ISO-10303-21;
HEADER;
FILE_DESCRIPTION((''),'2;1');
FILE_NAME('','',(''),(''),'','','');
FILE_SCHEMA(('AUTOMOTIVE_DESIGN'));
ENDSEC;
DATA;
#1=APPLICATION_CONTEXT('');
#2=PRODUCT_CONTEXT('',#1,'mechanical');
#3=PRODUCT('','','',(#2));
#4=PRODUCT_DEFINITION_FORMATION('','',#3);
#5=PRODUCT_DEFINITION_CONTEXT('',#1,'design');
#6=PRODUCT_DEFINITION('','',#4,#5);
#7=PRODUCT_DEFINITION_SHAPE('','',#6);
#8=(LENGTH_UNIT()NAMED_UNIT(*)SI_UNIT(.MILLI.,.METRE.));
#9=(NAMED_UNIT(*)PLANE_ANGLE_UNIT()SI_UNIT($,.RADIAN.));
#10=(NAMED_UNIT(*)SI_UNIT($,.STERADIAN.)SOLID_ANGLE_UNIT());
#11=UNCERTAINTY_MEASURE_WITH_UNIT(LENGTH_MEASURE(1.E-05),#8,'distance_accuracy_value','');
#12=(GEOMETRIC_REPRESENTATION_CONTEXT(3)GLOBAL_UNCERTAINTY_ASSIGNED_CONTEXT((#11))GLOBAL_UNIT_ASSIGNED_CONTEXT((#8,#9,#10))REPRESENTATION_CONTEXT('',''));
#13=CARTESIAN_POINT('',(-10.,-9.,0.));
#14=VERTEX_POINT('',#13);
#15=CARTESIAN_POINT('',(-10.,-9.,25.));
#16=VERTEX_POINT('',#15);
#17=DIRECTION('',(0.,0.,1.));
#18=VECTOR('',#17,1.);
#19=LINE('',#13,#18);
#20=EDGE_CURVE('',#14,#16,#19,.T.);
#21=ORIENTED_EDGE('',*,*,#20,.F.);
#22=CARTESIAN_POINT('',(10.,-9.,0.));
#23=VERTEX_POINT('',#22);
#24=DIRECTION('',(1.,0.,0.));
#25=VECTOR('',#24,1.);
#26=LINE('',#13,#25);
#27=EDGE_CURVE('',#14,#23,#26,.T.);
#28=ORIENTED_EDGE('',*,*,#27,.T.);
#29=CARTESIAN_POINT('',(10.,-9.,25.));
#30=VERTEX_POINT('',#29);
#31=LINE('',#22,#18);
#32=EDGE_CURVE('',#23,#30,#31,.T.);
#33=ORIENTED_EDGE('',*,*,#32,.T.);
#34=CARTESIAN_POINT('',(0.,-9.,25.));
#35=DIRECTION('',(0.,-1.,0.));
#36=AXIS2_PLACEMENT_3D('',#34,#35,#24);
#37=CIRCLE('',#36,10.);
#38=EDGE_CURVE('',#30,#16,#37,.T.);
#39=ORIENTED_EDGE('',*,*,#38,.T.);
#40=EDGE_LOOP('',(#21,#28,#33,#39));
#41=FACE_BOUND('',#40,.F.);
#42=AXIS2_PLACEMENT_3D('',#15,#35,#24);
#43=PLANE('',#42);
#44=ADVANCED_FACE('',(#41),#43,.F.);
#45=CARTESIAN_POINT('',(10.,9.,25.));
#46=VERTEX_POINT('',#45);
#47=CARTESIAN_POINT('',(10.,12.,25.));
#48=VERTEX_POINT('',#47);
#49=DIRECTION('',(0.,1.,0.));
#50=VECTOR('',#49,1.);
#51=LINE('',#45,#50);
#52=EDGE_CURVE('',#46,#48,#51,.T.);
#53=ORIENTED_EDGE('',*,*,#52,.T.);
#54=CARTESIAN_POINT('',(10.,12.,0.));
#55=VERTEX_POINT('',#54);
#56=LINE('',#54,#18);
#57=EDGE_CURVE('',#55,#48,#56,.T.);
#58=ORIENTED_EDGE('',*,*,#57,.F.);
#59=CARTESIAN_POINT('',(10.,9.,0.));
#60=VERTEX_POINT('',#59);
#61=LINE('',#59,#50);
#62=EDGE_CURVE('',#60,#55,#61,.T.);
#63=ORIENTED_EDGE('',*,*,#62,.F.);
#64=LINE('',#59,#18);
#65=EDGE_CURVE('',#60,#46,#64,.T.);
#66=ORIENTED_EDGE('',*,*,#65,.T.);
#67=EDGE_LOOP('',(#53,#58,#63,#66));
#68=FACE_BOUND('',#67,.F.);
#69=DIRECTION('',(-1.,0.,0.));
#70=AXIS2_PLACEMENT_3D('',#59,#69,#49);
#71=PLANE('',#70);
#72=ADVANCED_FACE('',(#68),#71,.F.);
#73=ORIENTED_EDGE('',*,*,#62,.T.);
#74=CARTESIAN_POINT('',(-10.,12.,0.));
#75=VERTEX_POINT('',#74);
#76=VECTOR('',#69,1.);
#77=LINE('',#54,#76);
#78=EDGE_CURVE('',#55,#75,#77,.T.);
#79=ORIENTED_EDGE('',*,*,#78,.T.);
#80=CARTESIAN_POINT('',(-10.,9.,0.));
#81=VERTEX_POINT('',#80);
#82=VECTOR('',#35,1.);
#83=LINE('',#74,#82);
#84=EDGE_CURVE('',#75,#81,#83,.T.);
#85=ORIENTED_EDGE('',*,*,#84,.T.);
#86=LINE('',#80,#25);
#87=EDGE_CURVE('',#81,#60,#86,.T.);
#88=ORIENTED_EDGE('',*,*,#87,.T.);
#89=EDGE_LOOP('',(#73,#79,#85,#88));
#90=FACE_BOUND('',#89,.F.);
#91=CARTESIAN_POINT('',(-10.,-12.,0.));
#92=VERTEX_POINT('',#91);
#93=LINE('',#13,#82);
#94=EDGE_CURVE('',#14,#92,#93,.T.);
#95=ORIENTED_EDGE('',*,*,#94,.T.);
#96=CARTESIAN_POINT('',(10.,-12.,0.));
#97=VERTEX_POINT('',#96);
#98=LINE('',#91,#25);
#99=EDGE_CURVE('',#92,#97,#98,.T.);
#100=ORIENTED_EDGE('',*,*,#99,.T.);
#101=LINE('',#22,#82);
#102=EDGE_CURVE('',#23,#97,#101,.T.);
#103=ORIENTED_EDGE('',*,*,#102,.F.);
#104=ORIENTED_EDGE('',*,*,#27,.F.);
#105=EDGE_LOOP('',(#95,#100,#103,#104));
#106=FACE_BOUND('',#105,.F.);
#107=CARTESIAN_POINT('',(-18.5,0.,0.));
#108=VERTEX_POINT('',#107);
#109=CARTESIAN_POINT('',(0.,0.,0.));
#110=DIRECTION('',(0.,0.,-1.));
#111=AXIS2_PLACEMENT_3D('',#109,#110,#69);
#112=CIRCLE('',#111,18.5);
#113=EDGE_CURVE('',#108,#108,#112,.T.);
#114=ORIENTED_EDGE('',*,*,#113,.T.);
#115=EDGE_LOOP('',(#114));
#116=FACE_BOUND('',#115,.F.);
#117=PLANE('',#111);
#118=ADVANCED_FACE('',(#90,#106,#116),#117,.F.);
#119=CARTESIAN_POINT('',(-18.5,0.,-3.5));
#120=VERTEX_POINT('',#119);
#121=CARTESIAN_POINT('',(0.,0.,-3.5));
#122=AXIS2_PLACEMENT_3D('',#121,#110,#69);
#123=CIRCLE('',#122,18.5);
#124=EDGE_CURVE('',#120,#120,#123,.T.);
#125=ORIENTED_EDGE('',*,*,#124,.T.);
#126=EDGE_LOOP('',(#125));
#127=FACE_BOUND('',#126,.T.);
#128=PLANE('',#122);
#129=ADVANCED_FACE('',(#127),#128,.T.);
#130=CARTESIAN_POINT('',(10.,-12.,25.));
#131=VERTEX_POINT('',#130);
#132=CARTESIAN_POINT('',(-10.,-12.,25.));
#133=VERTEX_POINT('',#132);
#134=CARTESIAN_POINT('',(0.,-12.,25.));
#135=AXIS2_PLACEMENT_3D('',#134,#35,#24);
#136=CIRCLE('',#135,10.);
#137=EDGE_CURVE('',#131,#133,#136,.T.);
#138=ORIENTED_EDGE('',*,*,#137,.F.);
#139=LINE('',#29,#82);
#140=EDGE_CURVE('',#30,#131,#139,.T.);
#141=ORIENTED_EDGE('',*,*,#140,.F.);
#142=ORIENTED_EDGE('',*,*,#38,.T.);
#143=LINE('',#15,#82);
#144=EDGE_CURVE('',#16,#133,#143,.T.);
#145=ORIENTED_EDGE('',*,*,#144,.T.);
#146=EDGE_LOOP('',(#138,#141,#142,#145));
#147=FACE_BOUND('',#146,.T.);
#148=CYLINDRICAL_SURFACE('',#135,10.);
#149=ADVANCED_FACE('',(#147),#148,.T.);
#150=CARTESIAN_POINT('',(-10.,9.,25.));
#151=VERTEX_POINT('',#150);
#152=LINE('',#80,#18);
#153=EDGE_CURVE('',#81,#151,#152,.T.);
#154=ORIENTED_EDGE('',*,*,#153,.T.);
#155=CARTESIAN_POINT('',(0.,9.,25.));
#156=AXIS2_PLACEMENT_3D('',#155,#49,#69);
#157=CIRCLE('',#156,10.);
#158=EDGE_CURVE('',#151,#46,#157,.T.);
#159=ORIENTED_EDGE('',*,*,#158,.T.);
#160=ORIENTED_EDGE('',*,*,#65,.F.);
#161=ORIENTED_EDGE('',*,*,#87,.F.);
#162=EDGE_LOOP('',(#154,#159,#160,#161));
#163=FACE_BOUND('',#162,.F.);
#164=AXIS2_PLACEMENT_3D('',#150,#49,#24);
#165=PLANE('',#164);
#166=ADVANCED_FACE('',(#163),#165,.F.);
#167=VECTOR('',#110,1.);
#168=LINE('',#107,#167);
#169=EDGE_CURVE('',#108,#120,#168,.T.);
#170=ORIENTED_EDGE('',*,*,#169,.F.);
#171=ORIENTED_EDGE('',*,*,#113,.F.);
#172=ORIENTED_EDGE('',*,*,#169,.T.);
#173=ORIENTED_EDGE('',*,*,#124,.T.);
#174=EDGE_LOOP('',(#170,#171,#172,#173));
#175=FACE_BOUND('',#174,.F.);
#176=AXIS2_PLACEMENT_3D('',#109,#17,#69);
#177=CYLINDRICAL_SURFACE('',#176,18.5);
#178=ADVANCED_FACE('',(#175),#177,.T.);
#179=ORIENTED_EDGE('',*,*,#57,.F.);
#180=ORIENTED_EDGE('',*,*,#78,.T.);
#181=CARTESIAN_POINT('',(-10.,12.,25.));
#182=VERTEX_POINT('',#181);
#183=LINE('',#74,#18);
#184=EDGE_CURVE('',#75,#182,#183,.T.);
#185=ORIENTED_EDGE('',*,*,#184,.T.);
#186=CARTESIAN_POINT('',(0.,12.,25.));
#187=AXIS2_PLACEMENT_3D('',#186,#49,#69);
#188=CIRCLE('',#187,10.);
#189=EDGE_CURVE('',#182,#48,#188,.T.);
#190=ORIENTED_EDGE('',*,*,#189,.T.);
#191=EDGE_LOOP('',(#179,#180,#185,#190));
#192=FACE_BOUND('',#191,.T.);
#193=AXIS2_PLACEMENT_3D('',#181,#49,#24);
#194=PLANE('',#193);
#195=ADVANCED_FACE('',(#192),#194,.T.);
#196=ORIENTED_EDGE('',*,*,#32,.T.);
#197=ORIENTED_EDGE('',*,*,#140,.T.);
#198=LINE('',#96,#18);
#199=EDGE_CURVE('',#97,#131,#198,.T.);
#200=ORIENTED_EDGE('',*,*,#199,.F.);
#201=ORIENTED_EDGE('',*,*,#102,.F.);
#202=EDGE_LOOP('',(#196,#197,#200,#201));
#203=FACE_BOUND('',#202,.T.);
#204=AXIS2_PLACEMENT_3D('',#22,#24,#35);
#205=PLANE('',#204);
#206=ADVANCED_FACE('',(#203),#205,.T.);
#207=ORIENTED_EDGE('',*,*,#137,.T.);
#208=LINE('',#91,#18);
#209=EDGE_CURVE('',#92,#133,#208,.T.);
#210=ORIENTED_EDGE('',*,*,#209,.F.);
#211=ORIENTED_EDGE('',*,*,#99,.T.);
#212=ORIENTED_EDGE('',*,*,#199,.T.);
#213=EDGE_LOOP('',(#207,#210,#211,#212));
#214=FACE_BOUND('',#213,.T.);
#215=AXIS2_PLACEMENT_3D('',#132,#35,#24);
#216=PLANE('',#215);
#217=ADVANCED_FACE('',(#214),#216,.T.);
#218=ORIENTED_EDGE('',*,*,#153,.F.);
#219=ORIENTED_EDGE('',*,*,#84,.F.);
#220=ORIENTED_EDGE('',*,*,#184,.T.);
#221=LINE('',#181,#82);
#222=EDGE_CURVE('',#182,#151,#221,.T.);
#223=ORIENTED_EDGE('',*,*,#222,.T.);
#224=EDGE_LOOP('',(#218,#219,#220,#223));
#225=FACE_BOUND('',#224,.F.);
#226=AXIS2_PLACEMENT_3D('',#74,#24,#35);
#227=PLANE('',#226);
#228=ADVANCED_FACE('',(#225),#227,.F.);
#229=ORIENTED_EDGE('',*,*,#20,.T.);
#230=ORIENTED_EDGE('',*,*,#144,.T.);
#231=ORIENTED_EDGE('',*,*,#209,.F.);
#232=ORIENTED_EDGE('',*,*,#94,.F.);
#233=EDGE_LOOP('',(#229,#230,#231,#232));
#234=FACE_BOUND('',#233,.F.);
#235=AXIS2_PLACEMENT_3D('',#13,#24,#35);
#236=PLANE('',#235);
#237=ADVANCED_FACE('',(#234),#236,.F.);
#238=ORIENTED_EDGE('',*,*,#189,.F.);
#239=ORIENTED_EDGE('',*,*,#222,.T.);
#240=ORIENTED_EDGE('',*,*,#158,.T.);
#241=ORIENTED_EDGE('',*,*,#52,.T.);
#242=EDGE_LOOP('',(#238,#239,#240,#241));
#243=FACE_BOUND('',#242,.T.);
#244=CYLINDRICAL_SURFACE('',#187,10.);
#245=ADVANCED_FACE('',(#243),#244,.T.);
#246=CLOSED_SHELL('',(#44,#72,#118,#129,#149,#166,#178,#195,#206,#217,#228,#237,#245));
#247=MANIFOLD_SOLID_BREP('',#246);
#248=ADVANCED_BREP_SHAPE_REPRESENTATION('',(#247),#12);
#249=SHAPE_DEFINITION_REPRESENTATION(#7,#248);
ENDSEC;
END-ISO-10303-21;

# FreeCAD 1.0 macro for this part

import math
import FreeCAD as App
import Part
import Sketcher

V = App.Vector

doc = App.newDocument("Part")
body = doc.addObject("PartDesign::Body", "Body")
body.AllowCompound = True

sketch1 = body.newObject("Sketcher::SketchObject", "Sketch")
sketch1.AttachmentSupport = (doc.getObject("XY_Plane"), [""])
sketch1.MapMode = "FlatFace"
sketch1.addGeometry(Part.LineSegment(V(10, -9, 0), V(-10, -9, 0)), False)
sketch1.addGeometry(Part.LineSegment(V(-10, -9, 0), V(-10, -12, 0)), False)
sketch1.addGeometry(Part.LineSegment(V(-10, -12, 0), V(10, -12, 0)), False)
sketch1.addGeometry(Part.LineSegment(V(10, -12, 0), V(10, -9, 0)), False)
sketch1.addGeometry(Part.LineSegment(V(-10, 12, 0), V(-10, 9, 0)), False)
sketch1.addGeometry(Part.LineSegment(V(-10, 9, 0), V(10, 9, 0)), False)
sketch1.addGeometry(Part.LineSegment(V(10, 9, 0), V(10, 12, 0)), False)
sketch1.addGeometry(Part.LineSegment(V(10, 12, 0), V(-10, 12, 0)), False)
sketch1.addConstraint(Sketcher.Constraint("Coincident", 0, 2, 1, 1))
sketch1.addConstraint(Sketcher.Constraint("Coincident", 1, 2, 2, 1))
sketch1.addConstraint(Sketcher.Constraint("Coincident", 2, 2, 3, 1))
sketch1.addConstraint(Sketcher.Constraint("Coincident", 3, 2, 0, 1))
sketch1.addConstraint(Sketcher.Constraint("Coincident", 4, 2, 5, 1))
sketch1.addConstraint(Sketcher.Constraint("Coincident", 5, 2, 6, 1))
sketch1.addConstraint(Sketcher.Constraint("Coincident", 6, 2, 7, 1))
sketch1.addConstraint(Sketcher.Constraint("Coincident", 7, 2, 4, 1))
sketch1.addConstraint(Sketcher.Constraint("Horizontal", 0))
sketch1.addConstraint(Sketcher.Constraint("Vertical", 1))
sketch1.addConstraint(Sketcher.Constraint("Horizontal", 2))
sketch1.addConstraint(Sketcher.Constraint("Vertical", 3))
sketch1.addConstraint(Sketcher.Constraint("Vertical", 4))
sketch1.addConstraint(Sketcher.Constraint("Horizontal", 5))
sketch1.addConstraint(Sketcher.Constraint("Vertical", 6))
sketch1.addConstraint(Sketcher.Constraint("Horizontal", 7))
sketch1.addConstraint(Sketcher.Constraint("Symmetric", 3, 2, 4, 2, -1, 1))
sketch1.addConstraint(Sketcher.Constraint("Symmetric", 1, 2, 6, 2, -1, 1))
sketch1.addConstraint(Sketcher.Constraint("Vertical", 1, 2, 4, 2))
sketch1.addConstraint(Sketcher.Constraint("DistanceX", 0, 2, 0, 1, 20.0))
sketch1.addConstraint(Sketcher.Constraint("DistanceY", 1, 2, 1, 1, 3.0))
sketch1.addConstraint(Sketcher.Constraint("DistanceY", 0, 2, 4, 2, 18.0))
pad1 = body.newObject("PartDesign::Pad", "Pad")
pad1.Profile = sketch1
pad1.Length = 25

sketch2 = body.newObject("Sketcher::SketchObject", "Sketch001")
sketch2.AttachmentSupport = (doc.getObject("XZ_Plane"), [""])
sketch2.MapMode = "FlatFace"
sketch2.AttachmentOffset = App.Placement(V(0, 0, -12), App.Rotation())
sketch2.addGeometry(Part.ArcOfCircle(Part.Circle(V(0, 25, 0), V(0, 0, 1), 10), math.radians(0), math.radians(180)), False)
sketch2.addGeometry(Part.LineSegment(V(10, 25, 0), V(-10, 25, 0)), False)
sketch2.addConstraint(Sketcher.Constraint("Coincident", 0, 1, 1, 1))
sketch2.addConstraint(Sketcher.Constraint("Coincident", 1, 2, 0, 2))
sketch2.addConstraint(Sketcher.Constraint("Horizontal", 1))
sketch2.addConstraint(Sketcher.Constraint("PointOnObject", 0, 3, -2))
sketch2.addConstraint(Sketcher.Constraint("Radius", 0, 10.0))
sketch2.addConstraint(Sketcher.Constraint("DistanceY", -1, 1, 0, 3, 25.0))
sketch2.addConstraint(Sketcher.Constraint("DistanceY", -1, 1, 0, 1, 25.0))
pad2 = body.newObject("PartDesign::Pad", "Pad001")
pad2.Profile = sketch2
pad2.Length = 3

sketch3 = body.newObject("Sketcher::SketchObject", "Sketch002")
sketch3.AttachmentSupport = (doc.getObject("XZ_Plane"), [""])
sketch3.MapMode = "FlatFace"
sketch3.AttachmentOffset = App.Placement(V(0, 0, 12), App.Rotation())
sketch3.addGeometry(Part.ArcOfCircle(Part.Circle(V(0, 25, 0), V(0, 0, 1), 10), math.radians(0), math.radians(180)), False)
sketch3.addGeometry(Part.LineSegment(V(-10, 25, 0), V(10, 25, 0)), False)
sketch3.addConstraint(Sketcher.Constraint("Coincident", 0, 1, 1, 2))
sketch3.addConstraint(Sketcher.Constraint("Coincident", 1, 1, 0, 2))
sketch3.addConstraint(Sketcher.Constraint("Horizontal", 1))
sketch3.addConstraint(Sketcher.Constraint("PointOnObject", 0, 3, -2))
sketch3.addConstraint(Sketcher.Constraint("Radius", 0, 10.0))
sketch3.addConstraint(Sketcher.Constraint("DistanceY", -1, 1, 0, 3, 25.0))
sketch3.addConstraint(Sketcher.Constraint("DistanceY", -1, 1, 0, 1, 25.0))
pad3 = body.newObject("PartDesign::Pad", "Pad002")
pad3.Profile = sketch3
pad3.Length = 3
pad3.Reversed = True

sketch4 = body.newObject("Sketcher::SketchObject", "Sketch003")
sketch4.AttachmentSupport = (doc.getObject("XY_Plane"), [""])
sketch4.MapMode = "FlatFace"
sketch4.addGeometry(Part.Circle(V(0, 0, 0), V(0, 0, 1), 18.5), False)
sketch4.addConstraint(Sketcher.Constraint("Coincident", 0, 3, -1, 1))
sketch4.addConstraint(Sketcher.Constraint("Diameter", 0, 37.0))
pad4 = body.newObject("PartDesign::Pad", "Pad003")
pad4.Profile = sketch4
pad4.Length = 3.5
pad4.Reversed = True

doc.recompute()
